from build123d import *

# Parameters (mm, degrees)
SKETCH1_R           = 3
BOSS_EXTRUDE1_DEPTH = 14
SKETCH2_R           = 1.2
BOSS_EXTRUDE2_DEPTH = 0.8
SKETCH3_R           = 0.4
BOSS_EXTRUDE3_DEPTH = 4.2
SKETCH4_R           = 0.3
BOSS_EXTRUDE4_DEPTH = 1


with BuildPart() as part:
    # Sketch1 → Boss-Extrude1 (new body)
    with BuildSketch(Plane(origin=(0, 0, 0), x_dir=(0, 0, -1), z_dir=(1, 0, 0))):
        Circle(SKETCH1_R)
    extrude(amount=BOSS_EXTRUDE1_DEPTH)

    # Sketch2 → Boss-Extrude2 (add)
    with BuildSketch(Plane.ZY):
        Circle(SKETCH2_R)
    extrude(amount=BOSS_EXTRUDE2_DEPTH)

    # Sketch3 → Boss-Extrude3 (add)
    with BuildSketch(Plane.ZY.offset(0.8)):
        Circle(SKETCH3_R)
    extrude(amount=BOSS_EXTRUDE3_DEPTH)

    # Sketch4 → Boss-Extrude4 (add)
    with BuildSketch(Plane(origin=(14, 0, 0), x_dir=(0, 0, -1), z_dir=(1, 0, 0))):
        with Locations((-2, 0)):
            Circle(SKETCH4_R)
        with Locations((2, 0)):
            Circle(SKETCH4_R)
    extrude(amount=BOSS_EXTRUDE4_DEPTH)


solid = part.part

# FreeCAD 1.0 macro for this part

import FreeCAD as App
import Part
import Sketcher

doc = App.newDocument("Part")
body = doc.addObject("PartDesign::Body", "Body")

sketch1 = body.newObject("Sketcher::SketchObject", "Sketch")
sketch1.AttachmentSupport = (doc.getObject("YZ_Plane"), [""])
sketch1.MapMode = "FlatFace"
sketch1.addGeometry(Part.Circle(App.Vector(0, 0, 0), App.Vector(0, 0, 1), 3), False)
sketch1.addConstraint(Sketcher.Constraint("Coincident", 0, 3, -1, 1))
sketch1.addConstraint(Sketcher.Constraint("Diameter", 0, 6.0))
pad1 = body.newObject("PartDesign::Pad", "Pad")
pad1.Profile = sketch1
pad1.Length = 14

sketch2 = body.newObject("Sketcher::SketchObject", "Sketch001")
sketch2.AttachmentSupport = (doc.getObject("YZ_Plane"), [""])
sketch2.MapMode = "FlatFace"
sketch2.addGeometry(Part.Circle(App.Vector(0, 0, 0), App.Vector(0, 0, 1), 1.2), False)
sketch2.addConstraint(Sketcher.Constraint("Coincident", 0, 3, -1, 1))
sketch2.addConstraint(Sketcher.Constraint("Diameter", 0, 2.4))
pad2 = body.newObject("PartDesign::Pad", "Pad001")
pad2.Profile = sketch2
pad2.Length = 0.8
pad2.Reversed = True

sketch3 = body.newObject("Sketcher::SketchObject", "Sketch002")
sketch3.AttachmentSupport = (doc.getObject("YZ_Plane"), [""])
sketch3.MapMode = "FlatFace"
sketch3.AttachmentOffset = App.Placement(App.Vector(0, 0, -0.8), App.Rotation())
sketch3.addGeometry(Part.Circle(App.Vector(0, 0, 0), App.Vector(0, 0, 1), 0.4), False)
sketch3.addConstraint(Sketcher.Constraint("Coincident", 0, 3, -1, 1))
sketch3.addConstraint(Sketcher.Constraint("Diameter", 0, 0.8))
pad3 = body.newObject("PartDesign::Pad", "Pad002")
pad3.Profile = sketch3
pad3.Length = 4.2
pad3.Reversed = True

sketch4 = body.newObject("Sketcher::SketchObject", "Sketch003")
sketch4.AttachmentSupport = (doc.getObject("YZ_Plane"), [""])
sketch4.MapMode = "FlatFace"
sketch4.AttachmentOffset = App.Placement(App.Vector(0, 0, 14), App.Rotation())
sketch4.addGeometry(Part.Circle(App.Vector(0, 2, 0), App.Vector(0, 0, 1), 0.3), False)
sketch4.addGeometry(Part.Circle(App.Vector(0, -2, 0), App.Vector(0, 0, 1), 0.3), False)
sketch4.addConstraint(Sketcher.Constraint("Equal", 0, 1))
sketch4.addConstraint(Sketcher.Constraint("Symmetric", 0, 3, 1, 3, -1, 1))
sketch4.addConstraint(Sketcher.Constraint("PointOnObject", 0, 3, -2))
sketch4.addConstraint(Sketcher.Constraint("Diameter", 0, 0.6))
sketch4.addConstraint(Sketcher.Constraint("DistanceY", -1, 1, 0, 3, 2.0))
pad4 = body.newObject("PartDesign::Pad", "Pad003")
pad4.Profile = sketch4
pad4.Length = 1

doc.recompute()
